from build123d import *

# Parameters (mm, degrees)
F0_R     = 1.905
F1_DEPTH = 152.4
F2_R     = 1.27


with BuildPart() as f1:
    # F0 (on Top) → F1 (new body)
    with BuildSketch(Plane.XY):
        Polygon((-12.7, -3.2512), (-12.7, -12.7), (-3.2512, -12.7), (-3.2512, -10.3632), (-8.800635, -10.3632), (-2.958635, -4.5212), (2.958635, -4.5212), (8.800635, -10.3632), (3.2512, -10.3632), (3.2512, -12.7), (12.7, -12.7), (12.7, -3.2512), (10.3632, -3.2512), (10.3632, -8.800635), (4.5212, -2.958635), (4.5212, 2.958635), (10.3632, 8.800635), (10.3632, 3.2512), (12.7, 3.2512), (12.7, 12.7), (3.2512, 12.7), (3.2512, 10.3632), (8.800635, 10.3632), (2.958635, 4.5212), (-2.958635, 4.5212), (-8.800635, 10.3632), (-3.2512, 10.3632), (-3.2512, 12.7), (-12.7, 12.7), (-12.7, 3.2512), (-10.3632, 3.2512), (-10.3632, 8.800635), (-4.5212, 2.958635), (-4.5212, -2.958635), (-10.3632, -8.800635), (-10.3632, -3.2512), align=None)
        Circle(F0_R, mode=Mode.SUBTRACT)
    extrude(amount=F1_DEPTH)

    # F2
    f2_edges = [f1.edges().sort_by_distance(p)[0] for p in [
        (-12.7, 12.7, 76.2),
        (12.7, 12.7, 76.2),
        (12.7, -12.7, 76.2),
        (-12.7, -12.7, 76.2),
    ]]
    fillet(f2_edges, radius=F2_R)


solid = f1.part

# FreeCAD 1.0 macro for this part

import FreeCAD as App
import Part
import Sketcher
Q = App.Units.Quantity


def edges_at(feature, points):
    """Names of the edges that pass closest to the given points."""
    edges = feature.Shape.Edges
    near = lambda p: min(range(len(edges)), key=lambda i: edges[i].distToShape(Part.Vertex(*p))[0])
    return sorted({f"Edge{near(p) + 1}" for p in points})

doc = App.newDocument("Part")
body = doc.addObject("PartDesign::Body", "Body")

# Sketch on XY plane
sketch1 = body.newObject("Sketcher::SketchObject", "Sketch")
sketch1.AttachmentSupport = (doc.getObject("XY_Plane"), [""])
sketch1.MapMode = "FlatFace"
sketch1.addGeometry([
    Part.LineSegment(App.Vector(-12.7, -3.3, 0), App.Vector(-12.7, -12.7, 0)),  # 0
    Part.LineSegment(App.Vector(-12.7, -12.7, 0), App.Vector(-3.3, -12.7, 0)),  # 1
    Part.LineSegment(App.Vector(-3.3, -12.7, 0), App.Vector(-3.3, -10.4, 0)),  # 2
    Part.LineSegment(App.Vector(-3.3, -10.4, 0), App.Vector(-8.8, -10.4, 0)),  # 3
    Part.LineSegment(App.Vector(-8.8, -10.4, 0), App.Vector(-3, -4.5, 0)),  # 4
    Part.LineSegment(App.Vector(-3, -4.5, 0), App.Vector(3, -4.5, 0)),  # 5
    Part.LineSegment(App.Vector(3, -4.5, 0), App.Vector(8.8, -10.4, 0)),  # 6
    Part.LineSegment(App.Vector(8.8, -10.4, 0), App.Vector(3.3, -10.4, 0)),  # 7
    Part.LineSegment(App.Vector(3.3, -10.4, 0), App.Vector(3.3, -12.7, 0)),  # 8
    Part.LineSegment(App.Vector(3.3, -12.7, 0), App.Vector(12.7, -12.7, 0)),  # 9
    Part.LineSegment(App.Vector(12.7, -12.7, 0), App.Vector(12.7, -3.3, 0)),  # 10
    Part.LineSegment(App.Vector(12.7, -3.3, 0), App.Vector(10.4, -3.3, 0)),  # 11
    Part.LineSegment(App.Vector(10.4, -3.3, 0), App.Vector(10.4, -8.8, 0)),  # 12
    Part.LineSegment(App.Vector(10.4, -8.8, 0), App.Vector(4.5, -3, 0)),  # 13
    Part.LineSegment(App.Vector(4.5, -3, 0), App.Vector(4.5, 3, 0)),  # 14
    Part.LineSegment(App.Vector(4.5, 3, 0), App.Vector(10.4, 8.8, 0)),  # 15
    Part.LineSegment(App.Vector(10.4, 8.8, 0), App.Vector(10.4, 3.3, 0)),  # 16
    Part.LineSegment(App.Vector(10.4, 3.3, 0), App.Vector(12.7, 3.3, 0)),  # 17
    Part.LineSegment(App.Vector(12.7, 3.3, 0), App.Vector(12.7, 12.7, 0)),  # 18
    Part.LineSegment(App.Vector(12.7, 12.7, 0), App.Vector(3.3, 12.7, 0)),  # 19
    Part.LineSegment(App.Vector(3.3, 12.7, 0), App.Vector(3.3, 10.4, 0)),  # 20
    Part.LineSegment(App.Vector(3.3, 10.4, 0), App.Vector(8.8, 10.4, 0)),  # 21
    Part.LineSegment(App.Vector(8.8, 10.4, 0), App.Vector(3, 4.5, 0)),  # 22
    Part.LineSegment(App.Vector(3, 4.5, 0), App.Vector(-3, 4.5, 0)),  # 23
    Part.LineSegment(App.Vector(-3, 4.5, 0), App.Vector(-8.8, 10.4, 0)),  # 24
    Part.LineSegment(App.Vector(-8.8, 10.4, 0), App.Vector(-3.3, 10.4, 0)),  # 25
    Part.LineSegment(App.Vector(-3.3, 10.4, 0), App.Vector(-3.3, 12.7, 0)),  # 26
    Part.LineSegment(App.Vector(-3.3, 12.7, 0), App.Vector(-12.7, 12.7, 0)),  # 27
    Part.LineSegment(App.Vector(-12.7, 12.7, 0), App.Vector(-12.7, 3.3, 0)),  # 28
    Part.LineSegment(App.Vector(-12.7, 3.3, 0), App.Vector(-10.4, 3.3, 0)),  # 29
    Part.LineSegment(App.Vector(-10.4, 3.3, 0), App.Vector(-10.4, 8.8, 0)),  # 30
    Part.LineSegment(App.Vector(-10.4, 8.8, 0), App.Vector(-4.5, 3, 0)),  # 31
    Part.LineSegment(App.Vector(-4.5, 3, 0), App.Vector(-4.5, -3, 0)),  # 32
    Part.LineSegment(App.Vector(-4.5, -3, 0), App.Vector(-10.4, -8.8, 0)),  # 33
    Part.LineSegment(App.Vector(-10.4, -8.8, 0), App.Vector(-10.4, -3.3, 0)),  # 34
    Part.LineSegment(App.Vector(-10.4, -3.3, 0), App.Vector(-12.7, -3.3, 0)),  # 35
    Part.Circle(App.Vector(0, 0, 0), App.Vector(0, 0, 1), 1.9),  # 36
], False)
sketch1.addConstraint([
    Sketcher.Constraint("Coincident", 0, 2, 1, 1),
    Sketcher.Constraint("Coincident", 1, 2, 2, 1),
    Sketcher.Constraint("Coincident", 2, 2, 3, 1),
    Sketcher.Constraint("Coincident", 3, 2, 4, 1),
    Sketcher.Constraint("Coincident", 4, 2, 5, 1),
    Sketcher.Constraint("Coincident", 5, 2, 6, 1),
    Sketcher.Constraint("Coincident", 6, 2, 7, 1),
    Sketcher.Constraint("Coincident", 7, 2, 8, 1),
    Sketcher.Constraint("Coincident", 8, 2, 9, 1),
    Sketcher.Constraint("Coincident", 9, 2, 10, 1),
    Sketcher.Constraint("Coincident", 10, 2, 11, 1),
    Sketcher.Constraint("Coincident", 11, 2, 12, 1),
    Sketcher.Constraint("Coincident", 12, 2, 13, 1),
    Sketcher.Constraint("Coincident", 13, 2, 14, 1),
    Sketcher.Constraint("Coincident", 14, 2, 15, 1),
    Sketcher.Constraint("Coincident", 15, 2, 16, 1),
    Sketcher.Constraint("Coincident", 16, 2, 17, 1),
    Sketcher.Constraint("Coincident", 17, 2, 18, 1),
    Sketcher.Constraint("Coincident", 18, 2, 19, 1),
    Sketcher.Constraint("Coincident", 19, 2, 20, 1),
    Sketcher.Constraint("Coincident", 20, 2, 21, 1),
    Sketcher.Constraint("Coincident", 21, 2, 22, 1),
    Sketcher.Constraint("Coincident", 22, 2, 23, 1),
    Sketcher.Constraint("Coincident", 23, 2, 24, 1),
    Sketcher.Constraint("Coincident", 24, 2, 25, 1),
    Sketcher.Constraint("Coincident", 25, 2, 26, 1),
    Sketcher.Constraint("Coincident", 26, 2, 27, 1),
    Sketcher.Constraint("Coincident", 27, 2, 28, 1),
    Sketcher.Constraint("Coincident", 28, 2, 29, 1),
    Sketcher.Constraint("Coincident", 29, 2, 30, 1),
    Sketcher.Constraint("Coincident", 30, 2, 31, 1),
    Sketcher.Constraint("Coincident", 31, 2, 32, 1),
    Sketcher.Constraint("Coincident", 32, 2, 33, 1),
    Sketcher.Constraint("Coincident", 33, 2, 34, 1),
    Sketcher.Constraint("Coincident", 34, 2, 35, 1),
    Sketcher.Constraint("Coincident", 35, 2, 0, 1),
    Sketcher.Constraint("Vertical", 0),
    Sketcher.Constraint("Horizontal", 1),
    Sketcher.Constraint("Vertical", 2),
    Sketcher.Constraint("Horizontal", 3),
    Sketcher.Constraint("Horizontal", 5),
    Sketcher.Constraint("Horizontal", 7),
    Sketcher.Constraint("Vertical", 8),
    Sketcher.Constraint("Horizontal", 9),
    Sketcher.Constraint("Vertical", 10),
    Sketcher.Constraint("Horizontal", 11),
    Sketcher.Constraint("Vertical", 12),
    Sketcher.Constraint("Vertical", 14),
    Sketcher.Constraint("Vertical", 16),
    Sketcher.Constraint("Horizontal", 17),
    Sketcher.Constraint("Vertical", 18),
    Sketcher.Constraint("Horizontal", 19),
    Sketcher.Constraint("Vertical", 20),
    Sketcher.Constraint("Horizontal", 21),
    Sketcher.Constraint("Horizontal", 23),
    Sketcher.Constraint("Horizontal", 25),
    Sketcher.Constraint("Vertical", 26),
    Sketcher.Constraint("Horizontal", 27),
    Sketcher.Constraint("Vertical", 28),
    Sketcher.Constraint("Horizontal", 29),
    Sketcher.Constraint("Vertical", 30),
    Sketcher.Constraint("Vertical", 32),
    Sketcher.Constraint("Vertical", 34),
    Sketcher.Constraint("Horizontal", 35),
    Sketcher.Constraint("Coincident", 36, 3, -1, 1),
    Sketcher.Constraint("Symmetric", 0, 2, 18, 2, -1, 1),
    Sketcher.Constraint("Symmetric", 2, 2, 20, 2, -1, 1),
    Sketcher.Constraint("Symmetric", 4, 2, 22, 2, -1, 1),
    Sketcher.Constraint("Symmetric", 6, 2, 24, 2, -1, 1),
    Sketcher.Constraint("Symmetric", 8, 2, 26, 2, -1, 1),
    Sketcher.Constraint("Symmetric", 10, 2, 28, 2, -1, 1),
    Sketcher.Constraint("Symmetric", 12, 2, 30, 2, -1, 1),
    Sketcher.Constraint("Symmetric", 13, 2, 31, 2, -1, 1),
    Sketcher.Constraint("Symmetric", 15, 2, 33, 2, -1, 1),
    Sketcher.Constraint("Symmetric", 3, 2, 6, 2, -2),
    Sketcher.Constraint("Symmetric", 1, 2, 8, 2, -2),
    Sketcher.Constraint("Symmetric", 17, 2, 28, 2, -2),
    Sketcher.Constraint("Symmetric", 15, 2, 30, 2, -2),
    Sketcher.Constraint("Perpendicular", 4, 6),
    Sketcher.Constraint("Parallel", 6, 13),
    Sketcher.Constraint("Perpendicular", 13, 15),
    Sketcher.Constraint("Parallel", 15, 22),
    Sketcher.Constraint("Perpendicular", 22, 24),
    Sketcher.Constraint("Perpendicular", 31, 33),
    Sketcher.Constraint("Horizontal", 14, 2, 31, 2),
    Sketcher.Constraint("Horizontal", 11, 2, 34, 2),
    Sketcher.Constraint("Equal", 27, 0),
    Sketcher.Constraint("Equal", 35, 2),
    Sketcher.Constraint("Equal", 25, 12),
    Sketcher.Constraint("Equal", 23, 14),
    Sketcher.Constraint("Equal", 6, 13),
    Sketcher.Constraint("Diameter", 36, Q("0.15 in")),
    Sketcher.Constraint("DistanceX", 0, 2, -1, 1, Q("0.5 in")),
    Sketcher.Constraint("DistanceX", 1, 1, 1, 2, Q("0.372 in")),
    Sketcher.Constraint("DistanceX", 11, 2, 11, 1, Q("0.092 in")),
    Sketcher.Constraint("DistanceY", 2, 2, 4, 2, Q("0.23 in")),
    Sketcher.Constraint("DistanceX", 5, 1, 5, 2, Q("5.91727 mm")),
])
pad1 = body.newObject("PartDesign::Pad", "Pad")
pad1.Profile = sketch1
pad1.Length = Q("6 in")
doc.recompute()

fillet = body.newObject("PartDesign::Fillet", "Fillet")
fillet.Base = (pad1, edges_at(pad1, [
    (-12.7, 12.7, 76.2),
    (12.7, 12.7, 76.2),
    (12.7, -12.7, 76.2),
    (-12.7, -12.7, 76.2),
]))
fillet.Radius = Q("0.05 in")

doc.recompute()
